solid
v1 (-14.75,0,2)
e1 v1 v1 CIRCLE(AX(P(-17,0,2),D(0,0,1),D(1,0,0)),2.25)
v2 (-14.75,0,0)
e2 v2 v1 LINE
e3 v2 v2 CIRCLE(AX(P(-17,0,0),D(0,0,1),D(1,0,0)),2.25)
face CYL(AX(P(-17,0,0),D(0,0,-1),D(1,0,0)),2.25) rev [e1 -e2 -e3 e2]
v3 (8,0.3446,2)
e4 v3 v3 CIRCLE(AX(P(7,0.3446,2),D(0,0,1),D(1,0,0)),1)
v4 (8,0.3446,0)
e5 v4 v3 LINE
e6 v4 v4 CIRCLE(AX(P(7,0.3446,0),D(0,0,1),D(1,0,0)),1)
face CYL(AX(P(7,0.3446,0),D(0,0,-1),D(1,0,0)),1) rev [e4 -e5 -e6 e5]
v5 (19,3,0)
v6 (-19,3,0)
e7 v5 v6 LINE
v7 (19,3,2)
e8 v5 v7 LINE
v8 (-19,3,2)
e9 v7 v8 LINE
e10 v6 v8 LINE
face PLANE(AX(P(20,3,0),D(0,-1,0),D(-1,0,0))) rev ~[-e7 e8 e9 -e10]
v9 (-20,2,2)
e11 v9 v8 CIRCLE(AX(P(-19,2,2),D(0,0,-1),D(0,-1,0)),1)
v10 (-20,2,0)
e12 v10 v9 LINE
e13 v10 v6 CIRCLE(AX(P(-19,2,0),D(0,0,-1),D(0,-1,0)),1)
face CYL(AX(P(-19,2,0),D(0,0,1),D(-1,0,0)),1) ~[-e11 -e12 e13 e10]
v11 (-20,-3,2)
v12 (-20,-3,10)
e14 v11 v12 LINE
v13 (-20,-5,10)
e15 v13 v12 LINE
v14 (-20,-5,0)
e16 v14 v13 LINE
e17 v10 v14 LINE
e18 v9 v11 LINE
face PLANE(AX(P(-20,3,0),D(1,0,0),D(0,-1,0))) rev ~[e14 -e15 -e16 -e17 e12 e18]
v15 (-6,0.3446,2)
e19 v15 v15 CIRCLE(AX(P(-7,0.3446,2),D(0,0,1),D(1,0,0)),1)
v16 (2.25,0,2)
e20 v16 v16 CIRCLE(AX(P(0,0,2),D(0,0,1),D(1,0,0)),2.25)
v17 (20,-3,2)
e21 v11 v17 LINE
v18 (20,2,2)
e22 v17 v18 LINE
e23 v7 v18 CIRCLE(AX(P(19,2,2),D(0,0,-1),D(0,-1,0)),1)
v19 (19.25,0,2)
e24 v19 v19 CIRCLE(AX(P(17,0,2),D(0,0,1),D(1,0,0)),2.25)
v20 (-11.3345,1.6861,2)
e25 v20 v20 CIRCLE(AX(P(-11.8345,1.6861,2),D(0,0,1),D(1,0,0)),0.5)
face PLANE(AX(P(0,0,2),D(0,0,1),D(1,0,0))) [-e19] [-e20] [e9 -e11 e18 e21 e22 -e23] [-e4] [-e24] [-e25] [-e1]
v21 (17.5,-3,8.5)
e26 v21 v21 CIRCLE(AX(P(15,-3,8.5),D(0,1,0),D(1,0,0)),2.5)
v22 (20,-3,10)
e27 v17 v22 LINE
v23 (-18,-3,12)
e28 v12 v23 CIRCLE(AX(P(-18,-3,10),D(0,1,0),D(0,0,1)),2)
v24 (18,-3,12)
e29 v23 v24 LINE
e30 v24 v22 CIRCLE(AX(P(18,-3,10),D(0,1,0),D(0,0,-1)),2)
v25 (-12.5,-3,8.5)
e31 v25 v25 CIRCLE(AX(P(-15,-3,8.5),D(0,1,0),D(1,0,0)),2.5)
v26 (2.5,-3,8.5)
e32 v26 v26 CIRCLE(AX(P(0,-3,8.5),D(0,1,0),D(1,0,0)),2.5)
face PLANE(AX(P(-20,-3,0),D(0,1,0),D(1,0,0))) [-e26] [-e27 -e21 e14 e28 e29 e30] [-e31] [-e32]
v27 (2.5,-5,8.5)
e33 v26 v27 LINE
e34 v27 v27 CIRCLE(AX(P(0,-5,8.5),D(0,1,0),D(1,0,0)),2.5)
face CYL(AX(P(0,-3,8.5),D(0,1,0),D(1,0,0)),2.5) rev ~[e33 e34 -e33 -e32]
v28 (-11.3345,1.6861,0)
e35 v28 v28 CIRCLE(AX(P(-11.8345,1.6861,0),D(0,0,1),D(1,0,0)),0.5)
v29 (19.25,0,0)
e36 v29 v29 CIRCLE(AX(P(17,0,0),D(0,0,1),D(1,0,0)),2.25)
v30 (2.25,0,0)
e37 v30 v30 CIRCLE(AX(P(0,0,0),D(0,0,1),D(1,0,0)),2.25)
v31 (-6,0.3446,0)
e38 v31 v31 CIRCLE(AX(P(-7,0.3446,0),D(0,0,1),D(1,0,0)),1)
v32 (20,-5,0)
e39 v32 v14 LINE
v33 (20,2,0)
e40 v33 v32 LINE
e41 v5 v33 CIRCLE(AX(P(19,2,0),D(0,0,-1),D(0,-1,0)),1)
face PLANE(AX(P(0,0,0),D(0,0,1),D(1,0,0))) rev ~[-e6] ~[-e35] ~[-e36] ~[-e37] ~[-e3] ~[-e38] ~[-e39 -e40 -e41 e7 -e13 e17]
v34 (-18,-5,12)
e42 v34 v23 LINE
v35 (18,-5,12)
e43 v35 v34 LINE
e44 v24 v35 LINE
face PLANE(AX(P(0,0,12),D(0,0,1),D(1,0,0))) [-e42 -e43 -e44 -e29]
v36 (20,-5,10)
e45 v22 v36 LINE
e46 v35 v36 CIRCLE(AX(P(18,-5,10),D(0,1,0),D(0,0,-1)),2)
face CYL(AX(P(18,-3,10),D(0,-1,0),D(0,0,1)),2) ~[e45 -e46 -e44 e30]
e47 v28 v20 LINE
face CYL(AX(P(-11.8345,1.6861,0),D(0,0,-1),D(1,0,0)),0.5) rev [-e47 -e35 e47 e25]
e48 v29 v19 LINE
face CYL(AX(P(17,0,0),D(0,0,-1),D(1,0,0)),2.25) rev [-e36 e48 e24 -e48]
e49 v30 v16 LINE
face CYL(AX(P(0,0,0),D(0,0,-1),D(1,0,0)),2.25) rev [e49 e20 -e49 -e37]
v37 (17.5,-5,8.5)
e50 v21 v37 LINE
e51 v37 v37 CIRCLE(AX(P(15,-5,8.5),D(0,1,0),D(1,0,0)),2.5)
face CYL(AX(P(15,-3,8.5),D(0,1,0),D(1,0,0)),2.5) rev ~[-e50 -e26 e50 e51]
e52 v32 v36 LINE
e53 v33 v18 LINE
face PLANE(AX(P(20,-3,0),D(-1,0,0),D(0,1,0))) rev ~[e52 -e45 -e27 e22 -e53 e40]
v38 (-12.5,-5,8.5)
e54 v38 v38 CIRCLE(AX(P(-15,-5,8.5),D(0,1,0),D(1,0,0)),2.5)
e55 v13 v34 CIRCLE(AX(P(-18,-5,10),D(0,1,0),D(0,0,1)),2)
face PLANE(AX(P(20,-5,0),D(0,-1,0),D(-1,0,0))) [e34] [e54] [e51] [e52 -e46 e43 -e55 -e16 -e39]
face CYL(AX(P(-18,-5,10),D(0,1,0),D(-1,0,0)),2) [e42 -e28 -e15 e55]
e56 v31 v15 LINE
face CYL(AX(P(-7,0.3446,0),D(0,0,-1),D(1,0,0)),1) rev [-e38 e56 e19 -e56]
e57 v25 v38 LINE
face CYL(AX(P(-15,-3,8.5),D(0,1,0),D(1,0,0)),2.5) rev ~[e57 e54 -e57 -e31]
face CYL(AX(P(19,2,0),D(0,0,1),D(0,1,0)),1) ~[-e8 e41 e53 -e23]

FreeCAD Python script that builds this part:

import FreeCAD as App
import Part
import Sketcher
from FreeCAD import Vector
Q = App.Units.Quantity


def edges_at(feature, points):
    """Names of the edges that pass closest to the given points."""
    edges = feature.Shape.Edges
    near = lambda p: min(range(len(edges)), key=lambda i: edges[i].distToShape(Part.Vertex(*p))[0])
    return sorted({f"Edge{near(p) + 1}" for p in points})


def add_polygon(sketch, points):
    """Adds a closed chain of lines whose ends are joined by coincident constraints."""
    first, n = sketch.GeometryCount, len(points)
    for a, b in zip(points, points[1:] + points[:1]):
        sketch.addGeometry(Part.LineSegment(App.Vector(*a, 0), App.Vector(*b, 0)), False)
    for i in range(n):
        sketch.addConstraint(Sketcher.Constraint("Coincident", first + i, 2, first + (i + 1) % n, 1))

doc = App.newDocument("Part")
body = doc.addObject("PartDesign::Body", "Body")

sketch1 = doc.addObject("Sketcher::SketchObject", "Sketch")
body.addObject(sketch1)
sketch1.AttachmentSupport = (doc.XY_Plane, [""])
sketch1.MapMode = "FlatFace"
add_polygon(sketch1, [(-20, 3), (-20, -3), (20, -3), (20, 3)])
sketch1.addGeometry(Part.Circle(Vector(-17, 0, 0), Vector(0, 0, 1), 2.25), False)
sketch1.addGeometry(Part.Circle(Vector(-7, 0.3446, 0), Vector(0, 0, 1), 1), False)
sketch1.addGeometry(Part.Circle(Vector(-11.8345, 1.6861, 0), Vector(0, 0, 1), 0.5), False)
sketch1.addGeometry(Part.Circle(Vector(0, 0, 0), Vector(0, 0, 1), 2.25), False)
sketch1.addGeometry(Part.Circle(Vector(7, 0.3446, 0), Vector(0, 0, 1), 1), False)
sketch1.addGeometry(Part.Circle(Vector(17, 0, 0), Vector(0, 0, 1), 2.25), False)
sketch1.addConstraint([
    Sketcher.Constraint("Vertical", 0),
    Sketcher.Constraint("Horizontal", 1),
    Sketcher.Constraint("Vertical", 2),
    Sketcher.Constraint("Horizontal", 3),
    Sketcher.Constraint("Coincident", 7, 3, -1, 1),
    Sketcher.Constraint("Equal", 4, 7),
    Sketcher.Constraint("Equal", 5, 8),
    Sketcher.Constraint("Equal", 7, 9),
    Sketcher.Constraint("Symmetric", 4, 3, 9, 3, -1, 1),
    Sketcher.Constraint("Symmetric", 0, 2, 2, 2, -1, 1),
    Sketcher.Constraint("Symmetric", 5, 3, 8, 3, -2),
    Sketcher.Constraint("PointOnObject", 4, 3, -1),
    Sketcher.Constraint("Diameter", 5, Q("2 mm")),
    Sketcher.Constraint("Diameter", 6, Q("1 mm")),
    Sketcher.Constraint("Diameter", 4, Q("4.5 mm")),
    Sketcher.Constraint("DistanceX", 1, 1, 1, 2, Q("40 mm")),
    Sketcher.Constraint("DistanceX", 4, 3, -1, 1, Q("17 mm")),
    Sketcher.Constraint("DistanceY", 0, 2, -1, 1, Q("3 mm")),
    Sketcher.Constraint("DistanceX", 5, 3, -1, 1, Q("7 mm")),
    Sketcher.Constraint("DistanceY", 0, 2, 5, 3, Q("3.3446 mm")),
    Sketcher.Constraint("DistanceY", -1, 1, 6, 3, Q("1.686 mm")),
    Sketcher.Constraint("DistanceX", 6, 3, -1, 1, Q("11.8345 mm")),
])
pad1 = doc.addObject("PartDesign::Pad", "Pad")
body.addObject(pad1)
pad1.Profile = sketch1
pad1.Length = 2

sketch2 = doc.addObject("Sketcher::SketchObject", "Sketch001")
body.addObject(sketch2)
sketch2.AttachmentSupport = (doc.XY_Plane, [""])
sketch2.MapMode = "FlatFace"
add_polygon(sketch2, [(20, -3), (-20, -3), (-20, -5), (20, -5)])
sketch2.addConstraint([
    Sketcher.Constraint("Horizontal", 0),
    Sketcher.Constraint("Vertical", 1),
    Sketcher.Constraint("Horizontal", 2),
    Sketcher.Constraint("Vertical", 3),
    Sketcher.Constraint("DistanceX", 0, 2, 0, 1, Q("40 mm")),
    Sketcher.Constraint("DistanceY", 1, 2, 1, 1, Q("2 mm")),
    Sketcher.Constraint("DistanceY", 0, 2, -1, 1, Q("3 mm")),
    Sketcher.Constraint("DistanceX", 0, 2, -1, 1, Q("20 mm")),
])
pad2 = doc.addObject("PartDesign::Pad", "Pad001")
body.addObject(pad2)
pad2.Profile = sketch2
pad2.Length = 12

sketch3 = doc.addObject("Sketcher::SketchObject", "Sketch002")
body.addObject(sketch3)
sketch3.AttachmentSupport = (doc.XZ_Plane, [""])
sketch3.MapMode = "FlatFace"
sketch3.AttachmentOffset = App.Placement(Vector(0, 0, 3), App.Rotation())
sketch3.addGeometry([
    Part.Circle(Vector(-15, 8.5, 0), Vector(0, 0, 1), 2.5),
    Part.Circle(Vector(15, 8.5, 0), Vector(0, 0, 1), 2.5),
    Part.Circle(Vector(0, 8.5, 0), Vector(0, 0, 1), 2.5),
], False)
sketch3.addConstraint([
    Sketcher.Constraint("Equal", 0, 1),
    Sketcher.Constraint("Equal", 1, 2),
    Sketcher.Constraint("Symmetric", 0, 3, 1, 3, -2),
    Sketcher.Constraint("PointOnObject", 2, 3, -2),
    Sketcher.Constraint("Horizontal", 1, 3, 2, 3),
    Sketcher.Constraint("Diameter", 0, Q("5 mm")),
    Sketcher.Constraint("DistanceX", 0, 3, -1, 1, Q("15 mm")),
    Sketcher.Constraint("DistanceY", -1, 1, 0, 3, Q("8.5 mm")),
])
pocket1 = doc.addObject("PartDesign::Pocket", "Pocket")
body.addObject(pocket1)
pocket1.Profile = sketch3
pocket1.Length = 7
pocket1.Reversed = True
doc.recompute()

fillet = doc.addObject("PartDesign::Fillet", "Fillet")
body.addObject(fillet)
fillet.Base = (pocket1, edges_at(pocket1, [(20, -4, 12), (-20, -4, 12)]))
fillet.Radius = 2
doc.recompute()

fillet2 = doc.addObject("PartDesign::Fillet", "Fillet001")
body.addObject(fillet2)
fillet2.Base = (fillet, edges_at(fillet, [(20, 3, 1), (-20, 3, 1)]))
fillet2.Radius = 1

doc.recompute()
